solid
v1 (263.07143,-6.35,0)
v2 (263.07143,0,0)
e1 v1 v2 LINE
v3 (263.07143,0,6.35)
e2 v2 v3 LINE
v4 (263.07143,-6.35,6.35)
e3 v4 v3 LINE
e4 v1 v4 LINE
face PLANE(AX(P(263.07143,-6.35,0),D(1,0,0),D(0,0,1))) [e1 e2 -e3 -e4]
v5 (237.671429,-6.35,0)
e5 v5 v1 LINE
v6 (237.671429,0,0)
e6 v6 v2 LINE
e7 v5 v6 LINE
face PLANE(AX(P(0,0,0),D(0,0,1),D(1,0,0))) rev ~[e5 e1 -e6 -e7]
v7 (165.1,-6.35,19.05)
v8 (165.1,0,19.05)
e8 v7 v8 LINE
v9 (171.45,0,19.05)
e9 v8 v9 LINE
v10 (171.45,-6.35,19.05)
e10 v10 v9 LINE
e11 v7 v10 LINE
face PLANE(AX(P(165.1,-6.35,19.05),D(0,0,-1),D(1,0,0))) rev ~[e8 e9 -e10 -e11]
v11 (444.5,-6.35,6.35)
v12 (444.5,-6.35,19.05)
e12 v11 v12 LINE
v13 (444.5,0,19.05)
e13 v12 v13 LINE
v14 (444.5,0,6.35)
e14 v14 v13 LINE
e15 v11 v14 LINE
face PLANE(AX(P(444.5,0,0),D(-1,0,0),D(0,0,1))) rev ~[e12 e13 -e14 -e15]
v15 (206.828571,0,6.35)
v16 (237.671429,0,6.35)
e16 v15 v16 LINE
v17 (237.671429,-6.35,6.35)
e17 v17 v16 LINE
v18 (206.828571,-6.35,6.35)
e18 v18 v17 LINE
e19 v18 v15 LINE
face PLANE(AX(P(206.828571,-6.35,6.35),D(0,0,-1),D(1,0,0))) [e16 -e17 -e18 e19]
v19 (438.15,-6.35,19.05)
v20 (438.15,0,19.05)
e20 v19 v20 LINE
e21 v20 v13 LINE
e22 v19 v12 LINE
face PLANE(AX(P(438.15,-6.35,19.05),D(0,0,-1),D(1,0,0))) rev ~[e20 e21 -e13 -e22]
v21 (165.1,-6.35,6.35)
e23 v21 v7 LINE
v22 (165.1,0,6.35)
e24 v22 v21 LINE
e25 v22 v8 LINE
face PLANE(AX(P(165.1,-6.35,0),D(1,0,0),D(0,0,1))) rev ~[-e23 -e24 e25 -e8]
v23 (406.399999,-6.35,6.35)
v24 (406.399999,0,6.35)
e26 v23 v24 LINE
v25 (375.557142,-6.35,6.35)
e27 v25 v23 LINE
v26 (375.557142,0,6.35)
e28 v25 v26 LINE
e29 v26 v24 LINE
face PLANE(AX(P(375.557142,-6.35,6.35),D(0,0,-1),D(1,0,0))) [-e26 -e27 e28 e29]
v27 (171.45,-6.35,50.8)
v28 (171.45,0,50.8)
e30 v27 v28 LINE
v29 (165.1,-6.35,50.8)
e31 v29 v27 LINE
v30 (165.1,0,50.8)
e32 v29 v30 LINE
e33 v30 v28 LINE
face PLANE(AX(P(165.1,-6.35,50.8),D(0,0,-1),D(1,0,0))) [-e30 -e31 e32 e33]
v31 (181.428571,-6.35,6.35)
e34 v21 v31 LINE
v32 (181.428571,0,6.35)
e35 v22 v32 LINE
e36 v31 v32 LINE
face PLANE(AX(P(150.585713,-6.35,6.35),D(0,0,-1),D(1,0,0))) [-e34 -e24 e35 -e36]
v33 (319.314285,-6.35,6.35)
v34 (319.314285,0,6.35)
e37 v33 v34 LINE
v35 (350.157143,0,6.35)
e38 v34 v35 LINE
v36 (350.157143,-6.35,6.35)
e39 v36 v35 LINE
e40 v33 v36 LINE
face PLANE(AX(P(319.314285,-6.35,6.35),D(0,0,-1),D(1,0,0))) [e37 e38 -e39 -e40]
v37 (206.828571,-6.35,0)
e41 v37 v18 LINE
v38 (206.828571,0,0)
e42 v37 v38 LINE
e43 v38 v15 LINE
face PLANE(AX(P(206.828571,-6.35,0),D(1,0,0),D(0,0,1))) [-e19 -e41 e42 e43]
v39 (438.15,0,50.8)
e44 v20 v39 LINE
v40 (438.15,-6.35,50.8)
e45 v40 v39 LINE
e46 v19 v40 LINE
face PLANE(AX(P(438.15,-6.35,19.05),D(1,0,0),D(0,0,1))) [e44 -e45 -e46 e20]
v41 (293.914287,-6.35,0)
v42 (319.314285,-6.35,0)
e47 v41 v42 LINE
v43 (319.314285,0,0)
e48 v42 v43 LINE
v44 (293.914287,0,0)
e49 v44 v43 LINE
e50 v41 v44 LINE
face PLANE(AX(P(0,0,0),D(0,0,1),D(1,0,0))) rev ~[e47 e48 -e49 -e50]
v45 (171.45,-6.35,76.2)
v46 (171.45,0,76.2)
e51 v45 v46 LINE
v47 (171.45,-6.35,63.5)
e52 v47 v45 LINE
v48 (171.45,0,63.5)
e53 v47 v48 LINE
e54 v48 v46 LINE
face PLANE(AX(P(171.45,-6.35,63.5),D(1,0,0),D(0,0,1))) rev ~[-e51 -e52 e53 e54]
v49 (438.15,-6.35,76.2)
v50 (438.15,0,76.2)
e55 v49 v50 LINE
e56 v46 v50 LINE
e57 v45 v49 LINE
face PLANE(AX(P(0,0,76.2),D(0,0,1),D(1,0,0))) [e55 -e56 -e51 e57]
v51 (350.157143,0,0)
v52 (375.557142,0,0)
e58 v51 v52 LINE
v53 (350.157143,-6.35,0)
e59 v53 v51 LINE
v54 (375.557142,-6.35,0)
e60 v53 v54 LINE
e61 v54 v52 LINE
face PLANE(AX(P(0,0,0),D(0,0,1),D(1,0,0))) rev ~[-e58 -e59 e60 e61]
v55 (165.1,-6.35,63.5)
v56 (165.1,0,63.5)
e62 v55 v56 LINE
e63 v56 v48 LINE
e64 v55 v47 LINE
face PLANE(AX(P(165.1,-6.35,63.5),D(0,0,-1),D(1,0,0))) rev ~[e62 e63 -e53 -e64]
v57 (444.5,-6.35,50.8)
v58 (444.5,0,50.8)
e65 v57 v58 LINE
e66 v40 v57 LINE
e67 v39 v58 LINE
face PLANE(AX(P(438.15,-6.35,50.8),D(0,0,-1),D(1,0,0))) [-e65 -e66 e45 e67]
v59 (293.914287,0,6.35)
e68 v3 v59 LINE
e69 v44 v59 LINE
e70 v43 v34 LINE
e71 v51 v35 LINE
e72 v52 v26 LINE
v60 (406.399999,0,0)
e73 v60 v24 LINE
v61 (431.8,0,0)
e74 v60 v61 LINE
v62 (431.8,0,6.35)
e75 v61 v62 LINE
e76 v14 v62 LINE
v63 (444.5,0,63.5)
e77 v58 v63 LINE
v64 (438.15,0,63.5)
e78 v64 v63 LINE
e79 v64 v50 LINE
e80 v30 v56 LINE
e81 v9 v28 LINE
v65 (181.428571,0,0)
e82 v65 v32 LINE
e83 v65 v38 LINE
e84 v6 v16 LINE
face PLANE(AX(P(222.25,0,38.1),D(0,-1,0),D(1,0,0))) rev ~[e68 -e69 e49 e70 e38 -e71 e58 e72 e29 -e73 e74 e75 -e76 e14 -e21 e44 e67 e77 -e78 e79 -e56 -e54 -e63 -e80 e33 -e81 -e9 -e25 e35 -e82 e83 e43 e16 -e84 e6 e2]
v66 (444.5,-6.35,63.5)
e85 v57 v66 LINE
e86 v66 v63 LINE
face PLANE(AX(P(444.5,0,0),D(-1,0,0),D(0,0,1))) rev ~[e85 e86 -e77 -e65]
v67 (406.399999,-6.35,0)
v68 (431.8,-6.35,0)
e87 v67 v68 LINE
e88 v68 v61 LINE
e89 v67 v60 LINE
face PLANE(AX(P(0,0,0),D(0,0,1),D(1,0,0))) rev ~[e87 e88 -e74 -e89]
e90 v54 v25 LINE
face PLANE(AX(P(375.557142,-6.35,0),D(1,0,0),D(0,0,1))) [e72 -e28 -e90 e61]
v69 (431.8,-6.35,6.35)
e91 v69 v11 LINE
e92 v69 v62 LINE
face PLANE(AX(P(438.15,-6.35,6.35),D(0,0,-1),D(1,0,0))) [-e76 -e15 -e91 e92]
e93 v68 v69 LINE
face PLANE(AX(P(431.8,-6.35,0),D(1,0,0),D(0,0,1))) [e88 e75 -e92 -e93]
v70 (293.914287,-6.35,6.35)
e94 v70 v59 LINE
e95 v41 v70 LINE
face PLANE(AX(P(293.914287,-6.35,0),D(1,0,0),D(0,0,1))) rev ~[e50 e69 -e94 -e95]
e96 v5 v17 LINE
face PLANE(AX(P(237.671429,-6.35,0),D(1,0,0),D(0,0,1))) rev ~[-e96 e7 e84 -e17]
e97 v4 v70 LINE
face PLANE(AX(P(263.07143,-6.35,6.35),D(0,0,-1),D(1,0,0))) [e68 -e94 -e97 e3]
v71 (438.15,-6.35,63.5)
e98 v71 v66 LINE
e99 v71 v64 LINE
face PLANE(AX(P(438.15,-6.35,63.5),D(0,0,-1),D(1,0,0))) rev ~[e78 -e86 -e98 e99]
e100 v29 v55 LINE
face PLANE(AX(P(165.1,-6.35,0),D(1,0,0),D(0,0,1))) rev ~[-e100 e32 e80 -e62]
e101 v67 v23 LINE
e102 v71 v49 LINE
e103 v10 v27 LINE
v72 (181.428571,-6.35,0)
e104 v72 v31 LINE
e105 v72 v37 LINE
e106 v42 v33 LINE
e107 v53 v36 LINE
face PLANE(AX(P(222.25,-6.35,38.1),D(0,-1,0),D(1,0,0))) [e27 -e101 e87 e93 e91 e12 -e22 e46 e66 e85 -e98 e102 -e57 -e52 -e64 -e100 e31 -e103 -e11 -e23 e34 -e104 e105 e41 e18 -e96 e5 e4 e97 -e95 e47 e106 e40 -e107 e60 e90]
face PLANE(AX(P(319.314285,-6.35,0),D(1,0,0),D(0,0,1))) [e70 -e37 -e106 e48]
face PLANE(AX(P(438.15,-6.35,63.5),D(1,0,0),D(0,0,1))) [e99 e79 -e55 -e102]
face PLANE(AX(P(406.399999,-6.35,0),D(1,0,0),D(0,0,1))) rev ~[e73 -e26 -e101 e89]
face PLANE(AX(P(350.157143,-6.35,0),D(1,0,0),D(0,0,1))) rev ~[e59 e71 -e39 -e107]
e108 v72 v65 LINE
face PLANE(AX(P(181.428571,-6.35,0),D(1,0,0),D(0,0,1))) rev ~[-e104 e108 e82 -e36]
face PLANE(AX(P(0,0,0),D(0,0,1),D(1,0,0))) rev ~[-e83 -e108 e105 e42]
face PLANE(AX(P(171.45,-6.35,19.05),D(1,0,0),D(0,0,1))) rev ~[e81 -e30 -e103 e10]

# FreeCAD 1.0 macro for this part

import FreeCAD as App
import Part
import Sketcher

V = App.Vector
Q = App.Units.Quantity


def add_polygon(sketch, points):
    """Adds a closed chain of lines whose ends are joined by coincident constraints."""
    first, n = sketch.GeometryCount, len(points)
    for a, b in zip(points, points[1:] + points[:1]):
        sketch.addGeometry(Part.LineSegment(App.Vector(*a, 0), App.Vector(*b, 0)), False)
    for i in range(n):
        sketch.addConstraint(Sketcher.Constraint("Coincident", first + i, 2, first + (i + 1) % n, 1))

doc = App.newDocument("Part")
body = doc.addObject("PartDesign::Body", "Body")

# Sketch on XZ plane
sketch1 = body.newObject("Sketcher::SketchObject", "Sketch")
sketch1.AttachmentSupport = (doc.getObject("XZ_Plane"), [""])
sketch1.MapMode = "FlatFace"
add_polygon(sketch1, [(0, 76), (0, 0), (444, 0), (444, 76)])  # lines 0-3
sketch1.addConstraint([
    Sketcher.Constraint("Vertical", 0),
    Sketcher.Constraint("Horizontal", 1),
    Sketcher.Constraint("Vertical", 2),
    Sketcher.Constraint("Horizontal", 3),
    Sketcher.Constraint("Coincident", 0, 2, -1, 1),
    Sketcher.Constraint("DistanceY", 0, 2, 0, 1, Q("3 in")),
    Sketcher.Constraint("DistanceX", 1, 1, 1, 2, Q("17.5 in")),
])
pad1 = body.newObject("PartDesign::Pad", "Pad")
pad1.Profile = sketch1
pad1.Length = Q("0.25 in")

# Sketch on XZ plane
sketch2 = body.newObject("Sketcher::SketchObject", "Sketch001")
sketch2.AttachmentSupport = (doc.getObject("XZ_Plane"), [""])
sketch2.MapMode = "FlatFace"
sketch2.AttachmentOffset = App.Placement(V(0, 0, 0.25 * 25.4), App.Rotation())
add_polygon(sketch2, [(0, 6), (0, 0), (6, 0), (6, 6)])  # lines 0-3
add_polygon(sketch2, [(0, 76), (0, 64), (6, 64), (6, 76)])  # lines 4-7
add_polygon(sketch2, [(0, 51), (0, 19), (6, 19), (6, 51)])  # lines 8-11
add_polygon(sketch2, [(438, 6), (438, 0), (444, 0), (444, 6)])  # lines 12-15
add_polygon(sketch2, [(438, 51), (438, 19), (444, 19), (444, 51)])  # lines 16-19
add_polygon(sketch2, [(438, 76), (438, 64), (444, 64), (444, 76)])  # lines 20-23
sketch2.addConstraint([
    Sketcher.Constraint("Vertical", 0),
    Sketcher.Constraint("Horizontal", 1),
    Sketcher.Constraint("Vertical", 2),
    Sketcher.Constraint("Horizontal", 3),
    Sketcher.Constraint("Vertical", 4),
    Sketcher.Constraint("Horizontal", 5),
    Sketcher.Constraint("Vertical", 6),
    Sketcher.Constraint("Horizontal", 7),
    Sketcher.Constraint("Vertical", 8),
    Sketcher.Constraint("Horizontal", 9),
    Sketcher.Constraint("Vertical", 10),
    Sketcher.Constraint("Horizontal", 11),
    Sketcher.Constraint("Vertical", 12),
    Sketcher.Constraint("Horizontal", 13),
    Sketcher.Constraint("Vertical", 14),
    Sketcher.Constraint("Horizontal", 15),
    Sketcher.Constraint("Vertical", 16),
    Sketcher.Constraint("Horizontal", 17),
    Sketcher.Constraint("Vertical", 18),
    Sketcher.Constraint("Horizontal", 19),
    Sketcher.Constraint("Vertical", 20),
    Sketcher.Constraint("Horizontal", 21),
    Sketcher.Constraint("Vertical", 22),
    Sketcher.Constraint("Horizontal", 23),
    Sketcher.Constraint("Coincident", 0, 2, -1, 1),
    Sketcher.Constraint("PointOnObject", 4, 2, -2),
    Sketcher.Constraint("PointOnObject", 8, 2, -2),
    Sketcher.Constraint("PointOnObject", 12, 2, -1),
    Sketcher.Constraint("Horizontal", 3, 2, 14, 2),
    Sketcher.Constraint("Horizontal", 9, 2, 16, 2),
    Sketcher.Constraint("Horizontal", 11, 2, 18, 2),
    Sketcher.Constraint("Horizontal", 5, 2, 20, 2),
    Sketcher.Constraint("Horizontal", 7, 2, 22, 2),
    Sketcher.Constraint("Vertical", 2, 2, 5, 2),
    Sketcher.Constraint("Vertical", 6, 2, 9, 2),
    Sketcher.Constraint("Vertical", 15, 2, 16, 2),
    Sketcher.Constraint("Vertical", 14, 2, 17, 2),
    Sketcher.Constraint("Vertical", 19, 2, 20, 2),
    Sketcher.Constraint("Vertical", 18, 2, 21, 2),
    Sketcher.Constraint("Equal", 11, 13),
    Sketcher.Constraint("Equal", 23, 0),
    Sketcher.Constraint("DistanceY", 4, 2, 4, 1, Q("0.5 in")),
    Sketcher.Constraint("DistanceY", -1, 1, 6, 2, Q("3 in")),
    Sketcher.Constraint("DistanceY", -1, 1, 10, 2, Q("2 in")),
    Sketcher.Constraint("DistanceX", 1, 2, 12, 2, Q("17 in")),
    Sketcher.Constraint("DistanceX", 1, 1, 1, 2, Q("0.25 in")),
    Sketcher.Constraint("DistanceY", 8, 2, 8, 1, Q("1.25 in")),
])
pocket1 = body.newObject("PartDesign::Pocket", "Pocket")
pocket1.Profile = sketch2
pocket1.Type = "ThroughAll"

# Sketch on XZ plane
sketch3 = body.newObject("Sketcher::SketchObject", "Sketch002")
sketch3.AttachmentSupport = (doc.getObject("XZ_Plane"), [""])
sketch3.MapMode = "FlatFace"
sketch3.AttachmentOffset = App.Placement(V(0, 0, 0.25 * 25.4), App.Rotation())
add_polygon(sketch3, [(38, 6), (38, 0), (69, 0), (69, 6)])  # lines 0-3
add_polygon(sketch3, [(94, 6), (94, 0), (125, 0), (125, 6)])  # lines 4-7
add_polygon(sketch3, [(151, 6), (151, 0), (181, 0), (181, 6)])  # lines 8-11
add_polygon(sketch3, [(207, 6), (207, 0), (238, 0), (238, 6)])  # lines 12-15
add_polygon(sketch3, [(263, 6), (263, 0), (294, 0), (294, 6)])  # lines 16-19
add_polygon(sketch3, [(319, 6), (319, 0), (350, 0), (350, 6)])  # lines 20-23
add_polygon(sketch3, [(376, 6), (376, 0), (406, 0), (406, 6)])  # lines 24-27
add_polygon(sketch3, [(6, 6), (6, 0), (13, 0), (13, 6)])  # lines 28-31
add_polygon(sketch3, [(432, 6), (432, 0), (438, 0), (438, 6)])  # lines 32-35
sketch3.addConstraint([
    Sketcher.Constraint("Vertical", 0),
    Sketcher.Constraint("Horizontal", 1),
    Sketcher.Constraint("Vertical", 2),
    Sketcher.Constraint("Horizontal", 3),
    Sketcher.Constraint("Vertical", 4),
    Sketcher.Constraint("Horizontal", 5),
    Sketcher.Constraint("Vertical", 6),
    Sketcher.Constraint("Horizontal", 7),
    Sketcher.Constraint("Vertical", 8),
    Sketcher.Constraint("Horizontal", 9),
    Sketcher.Constraint("Vertical", 10),
    Sketcher.Constraint("Horizontal", 11),
    Sketcher.Constraint("Vertical", 12),
    Sketcher.Constraint("Horizontal", 13),
    Sketcher.Constraint("Vertical", 14),
    Sketcher.Constraint("Horizontal", 15),
    Sketcher.Constraint("Vertical", 16),
    Sketcher.Constraint("Horizontal", 17),
    Sketcher.Constraint("Vertical", 18),
    Sketcher.Constraint("Horizontal", 19),
    Sketcher.Constraint("Vertical", 20),
    Sketcher.Constraint("Horizontal", 21),
    Sketcher.Constraint("Vertical", 22),
    Sketcher.Constraint("Horizontal", 23),
    Sketcher.Constraint("Vertical", 24),
    Sketcher.Constraint("Horizontal", 25),
    Sketcher.Constraint("Vertical", 26),
    Sketcher.Constraint("Horizontal", 27),
    Sketcher.Constraint("Vertical", 28),
    Sketcher.Constraint("Horizontal", 29),
    Sketcher.Constraint("Vertical", 30),
    Sketcher.Constraint("Horizontal", 31),
    Sketcher.Constraint("Vertical", 32),
    Sketcher.Constraint("Horizontal", 33),
    Sketcher.Constraint("Vertical", 34),
    Sketcher.Constraint("Horizontal", 35),
    Sketcher.Constraint("PointOnObject", 0, 2, -1),
    Sketcher.Constraint("PointOnObject", 4, 2, -1),
    Sketcher.Constraint("PointOnObject", 8, 2, -1),
    Sketcher.Constraint("PointOnObject", 12, 2, -1),
    Sketcher.Constraint("PointOnObject", 16, 2, -1),
    Sketcher.Constraint("PointOnObject", 20, 2, -1),
    Sketcher.Constraint("PointOnObject", 24, 2, -1),
    Sketcher.Constraint("PointOnObject", 28, 2, -1),
    Sketcher.Constraint("PointOnObject", 32, 2, -1),
    Sketcher.Constraint("Horizontal", 3, 2, 6, 2),
    Sketcher.Constraint("Horizontal", 7, 2, 10, 2),
    Sketcher.Constraint("Horizontal", 11, 2, 14, 2),
    Sketcher.Constraint("Horizontal", 15, 2, 18, 2),
    Sketcher.Constraint("Horizontal", 19, 2, 22, 2),
    Sketcher.Constraint("Horizontal", 23, 2, 26, 2),
    Sketcher.Constraint("Horizontal", 27, 2, 30, 2),
    Sketcher.Constraint("Horizontal", 31, 2, 34, 2),
    Sketcher.Constraint("Equal", 3, 5),
    Sketcher.Constraint("Equal", 7, 9),
    Sketcher.Constraint("Equal", 11, 13),
    Sketcher.Constraint("Equal", 15, 17),
    Sketcher.Constraint("Equal", 19, 21),
    Sketcher.Constraint("Equal", 23, 25),
    Sketcher.Constraint("Equal", 31, 33),
    Sketcher.Constraint("Equal", 35, 0),
    Sketcher.Constraint("DistanceX", -1, 1, 25, 2, Q("16 in")),
    Sketcher.Constraint("DistanceX", -1, 1, 32, 2, Q("17 in")),
    Sketcher.Constraint("DistanceX", 1, 2, 4, 2, Q("1 in")),
    Sketcher.Constraint("DistanceX", 5, 2, 8, 2, Q("1 in")),
    Sketcher.Constraint("DistanceX", 9, 2, 12, 2, Q("1 in")),
    Sketcher.Constraint("DistanceX", 13, 2, 16, 2, Q("1 in")),
    Sketcher.Constraint("DistanceX", 17, 2, 20, 2, Q("1 in")),
    Sketcher.Constraint("DistanceX", 21, 2, 24, 2, Q("1 in")),
    Sketcher.Constraint("DistanceX", 29, 2, 0, 2, Q("1 in")),
    Sketcher.Constraint("DistanceX", 29, 1, 29, 2, Q("0.25 in")),
    Sketcher.Constraint("DistanceX", -1, 1, 0, 2, Q("1.5 in")),
])
pocket2 = body.newObject("PartDesign::Pocket", "Pocket001")
pocket2.Profile = sketch3
pocket2.Type = "ThroughAll"

# Sketch on XZ plane
sketch4 = body.newObject("Sketcher::SketchObject", "Sketch003")
sketch4.AttachmentSupport = (doc.getObject("XZ_Plane"), [""])
sketch4.MapMode = "FlatFace"
sketch4.AttachmentOffset = App.Placement(V(0, 0, 0.25 * 25.4), App.Rotation())
add_polygon(sketch4, [(0, 76), (0, 0), (165, 0), (165, 76)])  # lines 0-3
sketch4.addConstraint([
    Sketcher.Constraint("Vertical", 0),
    Sketcher.Constraint("Horizontal", 1),
    Sketcher.Constraint("Vertical", 2),
    Sketcher.Constraint("Horizontal", 3),
    Sketcher.Constraint("Coincident", 0, 2, -1, 1),
    Sketcher.Constraint("DistanceY", 0, 2, 0, 1, Q("3 in")),
    Sketcher.Constraint("DistanceX", 1, 1, 1, 2, Q("6.5 in")),
])
pocket3 = body.newObject("PartDesign::Pocket", "Pocket002")
pocket3.Profile = sketch4
pocket3.Type = "ThroughAll"

# Sketch on XZ plane
sketch5 = body.newObject("Sketcher::SketchObject", "Sketch004")
sketch5.AttachmentSupport = (doc.getObject("XZ_Plane"), [""])
sketch5.MapMode = "FlatFace"
sketch5.AttachmentOffset = App.Placement(V(0, 0, 0.25 * 25.4), App.Rotation())
add_polygon(sketch5, [(165, 76), (165, 64), (171, 64), (171, 76)])  # lines 0-3
add_polygon(sketch5, [(165, 51), (165, 19), (171, 19), (171, 51)])  # lines 4-7
sketch5.addConstraint([
    Sketcher.Constraint("Vertical", 0),
    Sketcher.Constraint("Horizontal", 1),
    Sketcher.Constraint("Vertical", 2),
    Sketcher.Constraint("Horizontal", 3),
    Sketcher.Constraint("Vertical", 4),
    Sketcher.Constraint("Horizontal", 5),
    Sketcher.Constraint("Vertical", 6),
    Sketcher.Constraint("Horizontal", 7),
    Sketcher.Constraint("Vertical", 3, 2, 4, 2),
    Sketcher.Constraint("Vertical", 2, 2, 5, 2),
    Sketcher.Constraint("DistanceY", 0, 2, 0, 1, Q("0.5 in")),
    Sketcher.Constraint("DistanceY", -1, 1, 2, 2, Q("3 in")),
    Sketcher.Constraint("DistanceY", -1, 1, 6, 2, Q("2 in")),
    Sketcher.Constraint("DistanceX", 1, 1, 1, 2, Q("0.25 in")),
    Sketcher.Constraint("DistanceY", 4, 2, 4, 1, Q("1.25 in")),
    Sketcher.Constraint("DistanceX", -1, 1, 0, 2, Q("6.5 in")),
])
pocket4 = body.newObject("PartDesign::Pocket", "Pocket003")
pocket4.Profile = sketch5
pocket4.Type = "ThroughAll"

doc.recompute()
